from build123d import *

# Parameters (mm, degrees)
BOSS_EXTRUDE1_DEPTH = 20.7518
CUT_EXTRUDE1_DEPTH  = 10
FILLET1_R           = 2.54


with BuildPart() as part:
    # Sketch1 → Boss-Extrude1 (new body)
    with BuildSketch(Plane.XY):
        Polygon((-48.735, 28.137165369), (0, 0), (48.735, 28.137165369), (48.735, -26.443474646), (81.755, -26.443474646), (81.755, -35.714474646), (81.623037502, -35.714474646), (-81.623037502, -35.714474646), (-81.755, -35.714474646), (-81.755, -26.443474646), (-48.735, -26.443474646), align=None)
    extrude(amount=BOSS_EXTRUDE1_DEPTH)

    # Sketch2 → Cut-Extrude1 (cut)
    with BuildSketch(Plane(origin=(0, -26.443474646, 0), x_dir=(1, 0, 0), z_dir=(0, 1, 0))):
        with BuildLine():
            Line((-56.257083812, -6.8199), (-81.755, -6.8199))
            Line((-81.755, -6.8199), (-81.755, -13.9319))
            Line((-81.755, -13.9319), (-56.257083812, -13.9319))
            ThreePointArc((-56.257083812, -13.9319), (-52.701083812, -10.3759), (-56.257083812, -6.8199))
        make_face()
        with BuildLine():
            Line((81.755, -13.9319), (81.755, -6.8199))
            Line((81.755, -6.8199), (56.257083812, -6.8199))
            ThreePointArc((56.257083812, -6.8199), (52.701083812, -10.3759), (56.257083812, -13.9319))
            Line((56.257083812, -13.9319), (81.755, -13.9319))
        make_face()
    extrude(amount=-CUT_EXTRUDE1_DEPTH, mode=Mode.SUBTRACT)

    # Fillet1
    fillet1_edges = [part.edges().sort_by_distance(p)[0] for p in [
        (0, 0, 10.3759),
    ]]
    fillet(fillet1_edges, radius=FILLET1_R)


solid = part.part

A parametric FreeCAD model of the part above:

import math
import FreeCAD as App
import Part
import Sketcher
from FreeCAD import Vector
Q = App.Units.Quantity


def edges_at(feature, points):
    """Names of the edges that pass closest to the given points."""
    edges = feature.Shape.Edges
    near = lambda p: min(range(len(edges)), key=lambda i: edges[i].distToShape(Part.Vertex(*p))[0])
    return sorted({f"Edge{near(p) + 1}" for p in points})

doc = App.newDocument("Part")
body = doc.addObject("PartDesign::Body", "Body")

sketch1 = body.newObject("Sketcher::SketchObject", "Sketch")
sketch1.AttachmentSupport = (doc.getObject("XY_Plane"), [""])
sketch1.MapMode = "FlatFace"
sketch1.addGeometry(Part.LineSegment(Vector(0, 0, 0), Vector(-49, 28, 0)), False)
sketch1.addGeometry(Part.LineSegment(Vector(-49, 28, 0), Vector(-49, -26, 0)), False)
sketch1.addGeometry(Part.LineSegment(Vector(-49, -26, 0), Vector(-82, -26, 0)), False)
sketch1.addGeometry(Part.LineSegment(Vector(-82, -26, 0), Vector(-82, -36, 0)), False)
sketch1.addGeometry(Part.LineSegment(Vector(-82, -36, 0), Vector(82, -36, 0)), False)
sketch1.addGeometry(Part.LineSegment(Vector(82, -36, 0), Vector(82, -26, 0)), False)
sketch1.addGeometry(Part.LineSegment(Vector(82, -26, 0), Vector(49, -26, 0)), False)
sketch1.addGeometry(Part.LineSegment(Vector(49, -26, 0), Vector(49, 28, 0)), False)
sketch1.addGeometry(Part.LineSegment(Vector(49, 28, 0), Vector(0, 0, 0)), False)
sketch1.addConstraint(Sketcher.Constraint("Coincident", 0, 2, 1, 1))
sketch1.addConstraint(Sketcher.Constraint("Coincident", 1, 2, 2, 1))
sketch1.addConstraint(Sketcher.Constraint("Coincident", 2, 2, 3, 1))
sketch1.addConstraint(Sketcher.Constraint("Coincident", 3, 2, 4, 1))
sketch1.addConstraint(Sketcher.Constraint("Coincident", 4, 2, 5, 1))
sketch1.addConstraint(Sketcher.Constraint("Coincident", 5, 2, 6, 1))
sketch1.addConstraint(Sketcher.Constraint("Coincident", 6, 2, 7, 1))
sketch1.addConstraint(Sketcher.Constraint("Coincident", 7, 2, 8, 1))
sketch1.addConstraint(Sketcher.Constraint("Coincident", 8, 2, 0, 1))
sketch1.addConstraint(Sketcher.Constraint("Vertical", 1))
sketch1.addConstraint(Sketcher.Constraint("Horizontal", 2))
sketch1.addConstraint(Sketcher.Constraint("Vertical", 3))
sketch1.addConstraint(Sketcher.Constraint("Horizontal", 4))
sketch1.addConstraint(Sketcher.Constraint("Vertical", 5))
sketch1.addConstraint(Sketcher.Constraint("Horizontal", 6))
sketch1.addConstraint(Sketcher.Constraint("Vertical", 7))
sketch1.addConstraint(Sketcher.Constraint("Coincident", 8, 2, -1, 1))
sketch1.addConstraint(Sketcher.Constraint("Symmetric", 2, 2, 5, 2, -2))
sketch1.addConstraint(Sketcher.Constraint("Symmetric", 0, 2, 7, 2, -2))
sketch1.addConstraint(Sketcher.Constraint("DistanceX", 2, 2, 2, 1, Q("1.3 in")))
sketch1.addConstraint(Sketcher.Constraint("Angle", 0, Q("150 deg")))
sketch1.addConstraint(Sketcher.Constraint("DistanceY", 3, 2, 3, 1, Q("0.365 in")))
sketch1.addConstraint(Sketcher.Constraint("DistanceX", 4, 1, 4, 2, 163.51))
sketch1.addConstraint(Sketcher.Constraint("DistanceY", 1, 2, 1, 1, 54.58064))
pad1 = body.newObject("PartDesign::Pad", "Pad")
pad1.Profile = sketch1
pad1.Length = Q("0.817 in")

sketch2 = body.newObject("Sketcher::SketchObject", "Sketch001")
sketch2.AttachmentSupport = (doc.getObject("XZ_Plane"), [""])
sketch2.MapMode = "FlatFace"
sketch2.AttachmentOffset = App.Placement(Vector(0, 0, 26.443475), App.Rotation())
sketch2.addGeometry(Part.LineSegment(Vector(-56.3, 6.8, 0), Vector(-81.8, 6.8, 0)), False)
sketch2.addGeometry(Part.LineSegment(Vector(-81.8, 6.8, 0), Vector(-81.8, 13.9, 0)), False)
sketch2.addGeometry(Part.LineSegment(Vector(-81.8, 13.9, 0), Vector(-56.3, 13.9, 0)), False)
sketch2.addGeometry(Part.ArcOfCircle(Part.Circle(Vector(-56.3, 10.4, 0), Vector(0, 0, 1), 3.6), math.radians(-90), math.radians(90)), False)
sketch2.addGeometry(Part.LineSegment(Vector(81.8, 13.9, 0), Vector(81.8, 6.8, 0)), False)
sketch2.addGeometry(Part.LineSegment(Vector(81.8, 6.8, 0), Vector(56.3, 6.8, 0)), False)
sketch2.addGeometry(Part.ArcOfCircle(Part.Circle(Vector(56.3, 10.4, 0), Vector(0, 0, 1), 3.6), math.radians(90), math.radians(270)), False)
sketch2.addGeometry(Part.LineSegment(Vector(56.3, 13.9, 0), Vector(81.8, 13.9, 0)), False)
sketch2.addConstraint(Sketcher.Constraint("Coincident", 0, 2, 1, 1))
sketch2.addConstraint(Sketcher.Constraint("Coincident", 1, 2, 2, 1))
sketch2.addConstraint(Sketcher.Constraint("Tangent", 2, 2, 3, 2))
sketch2.addConstraint(Sketcher.Constraint("Tangent", 3, 1, 0, 1))
sketch2.addConstraint(Sketcher.Constraint("Coincident", 4, 2, 5, 1))
sketch2.addConstraint(Sketcher.Constraint("Tangent", 5, 2, 6, 2))
sketch2.addConstraint(Sketcher.Constraint("Tangent", 6, 1, 7, 1))
sketch2.addConstraint(Sketcher.Constraint("Coincident", 7, 2, 4, 1))
sketch2.addConstraint(Sketcher.Constraint("Horizontal", 0))
sketch2.addConstraint(Sketcher.Constraint("Vertical", 1))
sketch2.addConstraint(Sketcher.Constraint("Horizontal", 2))
sketch2.addConstraint(Sketcher.Constraint("Vertical", 4))
sketch2.addConstraint(Sketcher.Constraint("Horizontal", 5))
sketch2.addConstraint(Sketcher.Constraint("Horizontal", 7))
sketch2.addConstraint(Sketcher.Constraint("Equal", 3, 6))
sketch2.addConstraint(Sketcher.Constraint("Symmetric", 3, 3, 6, 3, -2))
sketch2.addConstraint(Sketcher.Constraint("Equal", 2, 5))
sketch2.addConstraint(Sketcher.Constraint("Radius", 3, Q("0.14 in")))
sketch2.addConstraint(Sketcher.Constraint("DistanceY", -1, 1, 3, 3, Q("0.4085 in")))
sketch2.addConstraint(Sketcher.Constraint("DistanceX", 0, 2, -1, 1, 81.755))
sketch2.addConstraint(Sketcher.Constraint("DistanceX", 0, 2, 0, 1, 25.497916))
pocket1 = body.newObject("PartDesign::Pocket", "Pocket")
pocket1.Profile = sketch2
pocket1.Length = 10
pocket1.Reversed = True
doc.recompute()

fillet = body.newObject("PartDesign::Fillet", "Fillet")
fillet.Base = (pocket1, edges_at(pocket1, [(0, 0, 10.376)]))
fillet.Radius = Q("0.1 in")

doc.recompute()
